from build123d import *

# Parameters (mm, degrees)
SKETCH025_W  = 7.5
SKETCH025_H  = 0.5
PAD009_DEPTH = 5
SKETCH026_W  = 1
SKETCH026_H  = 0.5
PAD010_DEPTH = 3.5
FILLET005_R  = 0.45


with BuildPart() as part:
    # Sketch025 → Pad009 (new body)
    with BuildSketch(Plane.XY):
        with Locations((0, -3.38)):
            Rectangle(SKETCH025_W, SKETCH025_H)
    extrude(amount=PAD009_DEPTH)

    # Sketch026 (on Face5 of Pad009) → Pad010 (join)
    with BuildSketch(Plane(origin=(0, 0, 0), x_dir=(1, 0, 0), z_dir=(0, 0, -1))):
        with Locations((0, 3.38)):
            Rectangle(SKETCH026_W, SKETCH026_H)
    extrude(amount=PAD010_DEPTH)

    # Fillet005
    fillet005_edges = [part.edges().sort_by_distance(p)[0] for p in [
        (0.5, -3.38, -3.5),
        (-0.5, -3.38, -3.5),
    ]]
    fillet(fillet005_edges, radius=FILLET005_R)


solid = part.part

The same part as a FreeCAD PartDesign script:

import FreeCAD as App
import Part
import Sketcher


def edges_at(feature, points):
    """Names of the edges that pass closest to the given points."""
    edges = feature.Shape.Edges
    near = lambda p: min(range(len(edges)), key=lambda i: edges[i].distToShape(Part.Vertex(*p))[0])
    return sorted({f"Edge{near(p) + 1}" for p in points})

doc = App.newDocument("Part")
params = doc.addObject("Spreadsheet::Sheet", "Params")
for row, (alias, value) in enumerate([
    ("sketch1_width", "7.5 mm"),
    ("sketch1_height", "0.5 mm"),
    ("pad1_length", "5 mm"),
    ("sketch2_width", "1 mm"),
    ("sketch2_height", "0.5 mm"),
    ("pad2_length", "3.5 mm"),
    ("fillet_radius", "0.45 mm"),
], start=1):
    params.set(f"A{row}", alias)
    params.set(f"B{row}", "=" + value)
    params.setAlias(f"B{row}", alias)

body = doc.addObject("PartDesign::Body", "Body")

sketch1 = body.newObject("Sketcher::SketchObject", "Sketch")
sketch1.AttachmentSupport = (doc.getObject("XY_Plane"), [""])
sketch1.MapMode = "FlatFace"
sketch1.addGeometry([
    Part.LineSegment(App.Vector(-3.75, -3.13, 0), App.Vector(-3.75, -3.63, 0)),
    Part.LineSegment(App.Vector(-3.75, -3.63, 0), App.Vector(3.75, -3.63, 0)),
    Part.LineSegment(App.Vector(3.75, -3.63, 0), App.Vector(3.75, -3.13, 0)),
    Part.LineSegment(App.Vector(3.75, -3.13, 0), App.Vector(-3.75, -3.13, 0)),
], False)
sketch1.addConstraint([
    Sketcher.Constraint("Coincident", 0, 2, 1, 1),
    Sketcher.Constraint("Coincident", 1, 2, 2, 1),
    Sketcher.Constraint("Coincident", 2, 2, 3, 1),
    Sketcher.Constraint("Coincident", 3, 2, 0, 1),
    Sketcher.Constraint("Vertical", 0),
    Sketcher.Constraint("Horizontal", 1),
    Sketcher.Constraint("Vertical", 2),
    Sketcher.Constraint("Horizontal", 3),
    Sketcher.Constraint("DistanceX", 1, 1, 1, 2, 7.5),
    Sketcher.Constraint("DistanceY", 0, 2, 0, 1, 0.5),
    Sketcher.Constraint("DistanceX", 0, 2, -1, 1, 3.75),
    Sketcher.Constraint("DistanceY", 0, 2, -1, 1, 3.63),
])
sketch1.setExpression("Constraints[8]", "Params.sketch1_width")
sketch1.setExpression("Constraints[9]", "Params.sketch1_height")
pad1 = body.newObject("PartDesign::Pad", "Pad")
pad1.Profile = sketch1
pad1.setExpression("Length", "Params.pad1_length")

sketch2 = body.newObject("Sketcher::SketchObject", "Sketch001")
sketch2.AttachmentSupport = (doc.getObject("XY_Plane"), [""])
sketch2.MapMode = "FlatFace"
sketch2.addGeometry([
    Part.LineSegment(App.Vector(-0.5, -3.63, 0), App.Vector(-0.5, -3.13, 0)),
    Part.LineSegment(App.Vector(-0.5, -3.13, 0), App.Vector(0.5, -3.13, 0)),
    Part.LineSegment(App.Vector(0.5, -3.13, 0), App.Vector(0.5, -3.63, 0)),
    Part.LineSegment(App.Vector(0.5, -3.63, 0), App.Vector(-0.5, -3.63, 0)),
], False)
sketch2.addConstraint([
    Sketcher.Constraint("Coincident", 0, 2, 1, 1),
    Sketcher.Constraint("Coincident", 1, 2, 2, 1),
    Sketcher.Constraint("Coincident", 2, 2, 3, 1),
    Sketcher.Constraint("Coincident", 3, 2, 0, 1),
    Sketcher.Constraint("Vertical", 0),
    Sketcher.Constraint("Horizontal", 1),
    Sketcher.Constraint("Vertical", 2),
    Sketcher.Constraint("Horizontal", 3),
    Sketcher.Constraint("DistanceX", 1, 1, 1, 2, 1.0),
    Sketcher.Constraint("DistanceY", 0, 1, 0, 2, 0.5),
    Sketcher.Constraint("DistanceX", 0, 2, -1, 1, 0.5),
    Sketcher.Constraint("DistanceY", 0, 2, -1, 1, 3.13),
])
sketch2.setExpression("Constraints[8]", "Params.sketch2_width")
sketch2.setExpression("Constraints[9]", "Params.sketch2_height")
pad2 = body.newObject("PartDesign::Pad", "Pad001")
pad2.Profile = sketch2
pad2.setExpression("Length", "Params.pad2_length")
pad2.Reversed = True
doc.recompute()

fillet = body.newObject("PartDesign::Fillet", "Fillet")
fillet.Base = (pad2, edges_at(pad2, [(0.5, -3.38, -3.5), (-0.5, -3.38, -3.5)]))
fillet.setExpression("Radius", "Params.fillet_radius")

doc.recompute()
